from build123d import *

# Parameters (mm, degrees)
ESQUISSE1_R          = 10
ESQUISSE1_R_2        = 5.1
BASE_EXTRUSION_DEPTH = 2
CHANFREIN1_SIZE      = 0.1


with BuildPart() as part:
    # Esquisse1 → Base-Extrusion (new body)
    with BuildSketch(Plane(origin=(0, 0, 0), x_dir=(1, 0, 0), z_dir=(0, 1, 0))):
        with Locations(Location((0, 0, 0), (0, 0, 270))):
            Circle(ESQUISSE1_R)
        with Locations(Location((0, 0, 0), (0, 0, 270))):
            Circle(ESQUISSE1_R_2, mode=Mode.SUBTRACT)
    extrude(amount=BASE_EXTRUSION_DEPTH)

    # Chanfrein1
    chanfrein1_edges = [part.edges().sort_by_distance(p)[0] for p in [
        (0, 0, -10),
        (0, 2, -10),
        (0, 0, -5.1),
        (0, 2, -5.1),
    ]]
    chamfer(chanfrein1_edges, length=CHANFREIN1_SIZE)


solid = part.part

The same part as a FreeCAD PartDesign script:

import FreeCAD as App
import Part
import Sketcher

V = App.Vector
Q = App.Units.Quantity


def edges_at(feature, points):
    """Names of the edges that pass closest to the given points."""
    edges = feature.Shape.Edges
    near = lambda p: min(range(len(edges)), key=lambda i: edges[i].distToShape(Part.Vertex(*p))[0])
    return sorted({f"Edge{near(p) + 1}" for p in points})

doc = App.newDocument("Part")
body = doc.addObject("PartDesign::Body", "Body")

# Sketch on XZ plane
sketch1 = body.newObject("Sketcher::SketchObject", "Sketch")
sketch1.AttachmentSupport = (doc.getObject("XZ_Plane"), [""])
sketch1.MapMode = "FlatFace"
sketch1.addGeometry([
    Part.Circle(V(0, 0, 0), V(0, 0, 1), 10),
    Part.Circle(V(0, 0, 0), V(0, 0, 1), 5),
], False)
sketch1.addConstraint([
    Sketcher.Constraint("Coincident", 0, 3, -1, 1),
    Sketcher.Constraint("Coincident", 1, 3, -1, 1),
    Sketcher.Constraint("Diameter", 0, Q("20 mm")),
    Sketcher.Constraint("Diameter", 1, Q("10.2 mm")),
])
pad1 = body.newObject("PartDesign::Pad", "Pad")
pad1.Profile = sketch1
pad1.Length = 2
pad1.Reversed = True
doc.recompute()

chamfer = body.newObject("PartDesign::Chamfer", "Chamfer")
chamfer.Base = (pad1, edges_at(pad1, [
    (0, 0, -10),
    (0, 2, -10),
    (0, 0, -5.1),
    (0, 2, -5.1),
]))
chamfer.Size = 0.1

doc.recompute()
